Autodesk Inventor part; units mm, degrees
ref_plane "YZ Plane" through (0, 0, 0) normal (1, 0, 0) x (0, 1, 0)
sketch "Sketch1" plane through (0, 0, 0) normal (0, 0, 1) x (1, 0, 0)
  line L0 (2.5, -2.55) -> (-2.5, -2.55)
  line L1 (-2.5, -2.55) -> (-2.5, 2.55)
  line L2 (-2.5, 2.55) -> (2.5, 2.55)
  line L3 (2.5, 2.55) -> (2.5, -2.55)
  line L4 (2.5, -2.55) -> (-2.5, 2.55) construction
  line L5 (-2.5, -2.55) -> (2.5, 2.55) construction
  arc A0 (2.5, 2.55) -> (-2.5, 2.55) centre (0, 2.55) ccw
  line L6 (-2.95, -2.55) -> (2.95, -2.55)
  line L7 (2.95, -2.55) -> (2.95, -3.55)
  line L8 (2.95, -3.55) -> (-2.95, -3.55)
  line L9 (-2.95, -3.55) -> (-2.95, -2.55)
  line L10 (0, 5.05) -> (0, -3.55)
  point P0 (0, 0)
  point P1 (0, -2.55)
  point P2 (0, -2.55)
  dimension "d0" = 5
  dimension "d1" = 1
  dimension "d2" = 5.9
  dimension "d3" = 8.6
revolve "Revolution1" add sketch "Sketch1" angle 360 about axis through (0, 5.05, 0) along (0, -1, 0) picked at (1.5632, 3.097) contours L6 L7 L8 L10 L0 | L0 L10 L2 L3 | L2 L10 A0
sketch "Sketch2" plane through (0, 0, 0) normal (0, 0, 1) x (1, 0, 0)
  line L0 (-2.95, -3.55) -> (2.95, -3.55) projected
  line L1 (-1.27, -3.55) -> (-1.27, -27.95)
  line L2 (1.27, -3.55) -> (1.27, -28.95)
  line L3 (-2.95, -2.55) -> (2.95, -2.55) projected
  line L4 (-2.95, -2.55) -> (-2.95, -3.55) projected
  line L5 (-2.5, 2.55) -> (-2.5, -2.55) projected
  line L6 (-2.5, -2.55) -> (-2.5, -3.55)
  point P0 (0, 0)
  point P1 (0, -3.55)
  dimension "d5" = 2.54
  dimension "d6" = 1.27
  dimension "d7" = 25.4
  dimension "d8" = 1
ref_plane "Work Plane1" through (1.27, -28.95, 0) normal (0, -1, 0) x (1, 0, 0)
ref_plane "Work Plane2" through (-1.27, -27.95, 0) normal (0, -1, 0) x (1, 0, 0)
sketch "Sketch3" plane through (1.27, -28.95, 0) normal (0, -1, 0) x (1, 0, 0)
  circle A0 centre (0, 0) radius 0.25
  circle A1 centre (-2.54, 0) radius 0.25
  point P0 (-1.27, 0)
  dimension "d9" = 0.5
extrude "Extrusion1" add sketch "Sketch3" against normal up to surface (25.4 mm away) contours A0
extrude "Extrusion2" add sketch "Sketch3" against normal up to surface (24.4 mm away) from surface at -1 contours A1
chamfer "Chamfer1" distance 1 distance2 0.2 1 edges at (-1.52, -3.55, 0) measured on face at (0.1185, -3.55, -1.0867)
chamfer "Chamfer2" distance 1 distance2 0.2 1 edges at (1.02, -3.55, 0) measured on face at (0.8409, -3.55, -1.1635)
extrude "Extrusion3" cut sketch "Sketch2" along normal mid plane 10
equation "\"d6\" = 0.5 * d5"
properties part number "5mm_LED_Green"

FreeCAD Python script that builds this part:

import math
import FreeCAD as App
import Part
import Sketcher

V = App.Vector
Q = App.Units.Quantity


def edges_at(feature, points):
    """Names of the edges that pass closest to the given points."""
    edges = feature.Shape.Edges
    near = lambda p: min(range(len(edges)), key=lambda i: edges[i].distToShape(Part.Vertex(*p))[0])
    return sorted({f"Edge{near(p) + 1}" for p in points})


def add_polygon(sketch, points):
    """Adds a closed chain of lines whose ends are joined by coincident constraints."""
    first, n = sketch.GeometryCount, len(points)
    for a, b in zip(points, points[1:] + points[:1]):
        sketch.addGeometry(Part.LineSegment(App.Vector(*a, 0), App.Vector(*b, 0)), False)
    for i in range(n):
        sketch.addConstraint(Sketcher.Constraint("Coincident", first + i, 2, first + (i + 1) % n, 1))

doc = App.newDocument("Part")
body = doc.addObject("PartDesign::Body", "Body")

# Sketch on XY plane
sketch1 = doc.addObject("Sketcher::SketchObject", "Sketch")
body.addObject(sketch1)
sketch1.AttachmentSupport = (doc.XY_Plane, [""])
sketch1.MapMode = "FlatFace"
sketch1.addGeometry([
    Part.LineSegment(V(2.95, -2.55, 0), V(2.5, -2.55, 0)),  # 0
    Part.LineSegment(V(2.5, -2.55, 0), V(2.5, 2.55, 0)),  # 1
    Part.ArcOfCircle(Part.Circle(V(0, 2.55, 0), V(0, 0, 1), 2.5), math.radians(0), math.radians(90)),  # 2
    Part.LineSegment(V(0, 5.05, 0), V(0, -3.55, 0)),  # 3
    Part.LineSegment(V(0, -3.55, 0), V(2.95, -3.55, 0)),  # 4
    Part.LineSegment(V(2.95, -3.55, 0), V(2.95, -2.55, 0)),  # 5
], False)
sketch1.addConstraint([
    Sketcher.Constraint("Coincident", 0, 2, 1, 1),
    Sketcher.Constraint("Tangent", 1, 2, 2, 1),
    Sketcher.Constraint("Coincident", 2, 2, 3, 1),
    Sketcher.Constraint("Coincident", 3, 2, 4, 1),
    Sketcher.Constraint("Coincident", 4, 2, 5, 1),
    Sketcher.Constraint("Coincident", 5, 2, 0, 1),
    Sketcher.Constraint("Horizontal", 0),
    Sketcher.Constraint("Vertical", 1),
    Sketcher.Constraint("Vertical", 3),
    Sketcher.Constraint("Horizontal", 4),
    Sketcher.Constraint("Vertical", 5),
    Sketcher.Constraint("PointOnObject", 2, 3, -2),
    Sketcher.Constraint("PointOnObject", 2, 2, -2),
    Sketcher.Constraint("Radius", 2, Q("2.5 mm")),
    Sketcher.Constraint("DistanceY", 5, 1, 5, 2, Q("1 mm")),
    Sketcher.Constraint("DistanceY", 3, 2, 3, 1, Q("8.6 mm")),
    Sketcher.Constraint("DistanceX", 0, 2, 0, 1, Q("0.45 mm")),
    Sketcher.Constraint("DistanceY", -1, 1, 2, 3, Q("2.55 mm")),
])
revolution = doc.addObject("PartDesign::Revolution", "Revolution")
body.addObject(revolution)
revolution.Profile = sketch1
revolution.ReferenceAxis = (sketch1, ["V_Axis"])
revolution.Angle = 360

# Sketch on XZ plane
sketch2 = doc.addObject("Sketcher::SketchObject", "Sketch001")
body.addObject(sketch2)
sketch2.AttachmentSupport = (doc.XZ_Plane, [""])
sketch2.MapMode = "FlatFace"
sketch2.AttachmentOffset = App.Placement(V(0, 0, 28.95), App.Rotation())
sketch2.addGeometry(Part.Circle(V(1.27, 0, 0), V(0, 0, 1), 0.25), False)
sketch2.addConstraint([
    Sketcher.Constraint("PointOnObject", 0, 3, -1),
    Sketcher.Constraint("Diameter", 0, Q("0.5 mm")),
    Sketcher.Constraint("DistanceX", -1, 1, 0, 3, Q("1.27 mm")),
])
pad1 = doc.addObject("PartDesign::Pad", "Pad")
body.addObject(pad1)
pad1.Profile = sketch2
pad1.Length = 25.4
pad1.Reversed = True

# Sketch on XZ plane
sketch3 = doc.addObject("Sketcher::SketchObject", "Sketch002")
body.addObject(sketch3)
sketch3.AttachmentSupport = (doc.XZ_Plane, [""])
sketch3.MapMode = "FlatFace"
sketch3.AttachmentOffset = App.Placement(V(0, 0, 27.95), App.Rotation())
sketch3.addGeometry(Part.Circle(V(-1.27, 0, 0), V(0, 0, 1), 0.25), False)
sketch3.addConstraint([
    Sketcher.Constraint("PointOnObject", 0, 3, -1),
    Sketcher.Constraint("Diameter", 0, Q("0.5 mm")),
    Sketcher.Constraint("DistanceX", 0, 3, -1, 1, Q("1.27 mm")),
])
pad2 = doc.addObject("PartDesign::Pad", "Pad001")
body.addObject(pad2)
pad2.Profile = sketch3
pad2.Length = 24.4
pad2.Reversed = True
doc.recompute()

chamfer = doc.addObject("PartDesign::Chamfer", "Chamfer")
body.addObject(chamfer)
chamfer.Base = (pad2, edges_at(pad2, [(-1.52, -3.55, 0)]))
chamfer.ChamferType = "Two distances"
chamfer.Size = 1
chamfer.Size2 = 0.2
doc.recompute()

chamfer2 = doc.addObject("PartDesign::Chamfer", "Chamfer001")
body.addObject(chamfer2)
chamfer2.Base = (chamfer, edges_at(chamfer, [(1.02, -3.55, 0)]))
chamfer2.ChamferType = "Two distances"
chamfer2.Size = 1
chamfer2.Size2 = 0.2

# Sketch on XY plane
sketch4 = doc.addObject("Sketcher::SketchObject", "Sketch003")
body.addObject(sketch4)
sketch4.AttachmentSupport = (doc.XY_Plane, [""])
sketch4.MapMode = "FlatFace"
add_polygon(sketch4, [(-2.95, -2.55), (-2.95, -3.55), (-2.5, -3.55), (-2.5, -2.55)])  # lines 0-3
sketch4.addConstraint([
    Sketcher.Constraint("Vertical", 0),
    Sketcher.Constraint("Horizontal", 1),
    Sketcher.Constraint("Vertical", 2),
    Sketcher.Constraint("Horizontal", 3),
    Sketcher.Constraint("DistanceY", 0, 2, 0, 1, Q("1 mm")),
    Sketcher.Constraint("DistanceX", 1, 1, 1, 2, Q("0.45 mm")),
    Sketcher.Constraint("DistanceX", 1, 2, -1, 1, Q("2.5 mm")),
    Sketcher.Constraint("DistanceY", 0, 2, -1, 1, Q("3.55 mm")),
])
pocket1 = doc.addObject("PartDesign::Pocket", "Pocket")
body.addObject(pocket1)
pocket1.Profile = sketch4
pocket1.Length = 10
pocket1.Midplane = True

doc.recompute()
